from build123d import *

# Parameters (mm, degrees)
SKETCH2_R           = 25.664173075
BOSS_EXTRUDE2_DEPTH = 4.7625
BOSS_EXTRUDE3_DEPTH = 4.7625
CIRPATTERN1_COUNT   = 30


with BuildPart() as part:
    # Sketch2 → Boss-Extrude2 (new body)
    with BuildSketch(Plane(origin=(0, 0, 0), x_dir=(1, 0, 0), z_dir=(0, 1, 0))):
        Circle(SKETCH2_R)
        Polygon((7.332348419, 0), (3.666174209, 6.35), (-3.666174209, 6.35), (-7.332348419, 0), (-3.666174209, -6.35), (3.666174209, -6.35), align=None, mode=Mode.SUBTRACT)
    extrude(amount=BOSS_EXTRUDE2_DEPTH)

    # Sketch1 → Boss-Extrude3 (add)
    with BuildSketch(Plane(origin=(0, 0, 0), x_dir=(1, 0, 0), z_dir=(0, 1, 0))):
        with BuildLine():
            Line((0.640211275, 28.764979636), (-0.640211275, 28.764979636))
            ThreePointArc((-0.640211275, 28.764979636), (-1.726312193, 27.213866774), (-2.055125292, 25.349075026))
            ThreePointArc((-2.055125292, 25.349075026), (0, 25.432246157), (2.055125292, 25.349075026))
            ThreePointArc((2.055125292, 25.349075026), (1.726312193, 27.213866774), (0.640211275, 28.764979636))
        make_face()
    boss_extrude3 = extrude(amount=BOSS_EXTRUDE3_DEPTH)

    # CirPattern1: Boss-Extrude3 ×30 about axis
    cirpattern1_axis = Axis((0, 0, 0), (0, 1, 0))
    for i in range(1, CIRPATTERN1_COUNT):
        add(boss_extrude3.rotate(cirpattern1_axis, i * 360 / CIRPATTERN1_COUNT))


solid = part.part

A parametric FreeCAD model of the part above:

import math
import FreeCAD as App
import Part
import Sketcher
from FreeCAD import Vector
Q = App.Units.Quantity

doc = App.newDocument("Part")
params = doc.addObject("Spreadsheet::Sheet", "Params")
for row, (alias, value) in enumerate([
    ("pad1_length", "0.1875 in"),
    ("pad2_length", "0.1875 in"),
], start=1):
    params.set(f"A{row}", alias)
    params.set(f"B{row}", "=" + value)
    params.setAlias(f"B{row}", alias)

body = doc.addObject("PartDesign::Body", "Body")

sketch1 = body.newObject("Sketcher::SketchObject", "Sketch")
sketch1.AttachmentSupport = (doc.getObject("XZ_Plane"), [""])
sketch1.MapMode = "FlatFace"
sketch1.addGeometry(Part.Circle(Vector(0, 0, 0), Vector(0, 0, 1), 26), False)
sketch1.addGeometry(Part.LineSegment(Vector(4, -6, 0), Vector(7, 0, 0)), False)
sketch1.addGeometry(Part.LineSegment(Vector(7, 0, 0), Vector(4, 6, 0)), False)
sketch1.addGeometry(Part.LineSegment(Vector(4, 6, 0), Vector(-4, 6, 0)), False)
sketch1.addGeometry(Part.LineSegment(Vector(-4, 6, 0), Vector(-7, 0, 0)), False)
sketch1.addGeometry(Part.LineSegment(Vector(-7, 0, 0), Vector(-4, -6, 0)), False)
sketch1.addGeometry(Part.LineSegment(Vector(-4, -6, 0), Vector(4, -6, 0)), False)
sketch1.addConstraint(Sketcher.Constraint("Coincident", 1, 2, 2, 1))
sketch1.addConstraint(Sketcher.Constraint("Coincident", 2, 2, 3, 1))
sketch1.addConstraint(Sketcher.Constraint("Coincident", 3, 2, 4, 1))
sketch1.addConstraint(Sketcher.Constraint("Coincident", 4, 2, 5, 1))
sketch1.addConstraint(Sketcher.Constraint("Coincident", 5, 2, 6, 1))
sketch1.addConstraint(Sketcher.Constraint("Coincident", 6, 2, 1, 1))
sketch1.addConstraint(Sketcher.Constraint("Horizontal", 3))
sketch1.addConstraint(Sketcher.Constraint("Horizontal", 6))
sketch1.addConstraint(Sketcher.Constraint("Coincident", 0, 3, -1, 1))
sketch1.addConstraint(Sketcher.Constraint("Symmetric", 1, 2, 4, 2, -1, 1))
sketch1.addConstraint(Sketcher.Constraint("Symmetric", 2, 2, 5, 2, -1, 1))
sketch1.addConstraint(Sketcher.Constraint("PointOnObject", 1, 2, -1))
sketch1.addConstraint(Sketcher.Constraint("Parallel", 1, 4))
sketch1.addConstraint(Sketcher.Constraint("Vertical", 3, 2, 5, 2))
sketch1.addConstraint(Sketcher.Constraint("Angle", 1, Q("60 deg")))
sketch1.addConstraint(Sketcher.Constraint("DistanceY", 5, 2, 3, 2, Q("0.5 in")))
sketch1.addConstraint(Sketcher.Constraint("Diameter", 0, 51.328346))
sketch1.addConstraint(Sketcher.Constraint("DistanceX", 3, 2, 3, 1, 7.332348))
pad1 = body.newObject("PartDesign::Pad", "Pad")
pad1.Profile = sketch1
pad1.setExpression("Length", "Params.pad1_length")
pad1.Reversed = True

sketch2 = body.newObject("Sketcher::SketchObject", "Sketch001")
sketch2.AttachmentSupport = (doc.getObject("XZ_Plane"), [""])
sketch2.MapMode = "FlatFace"
sketch2.addGeometry(Part.LineSegment(Vector(0.6, -28.8, 0), Vector(-0.6, -28.8, 0)), False)
sketch2.addGeometry(Part.ArcOfCircle(Part.Circle(Vector(2.3, -25.5, 0), Vector(0, 0, 1), 4.4), math.radians(178), math.radians(227)), False)
sketch2.addGeometry(Part.ArcOfCircle(Part.Circle(Vector(0, 0, 0), Vector(0, 0, 1), 25.4), math.radians(-94.64), math.radians(-85.36)), False)
sketch2.addGeometry(Part.ArcOfCircle(Part.Circle(Vector(-2.3, -25.5, 0), Vector(0, 0, 1), 4.4), math.radians(-47), math.radians(2)), False)
sketch2.addConstraint(Sketcher.Constraint("Coincident", 0, 2, 1, 2))
sketch2.addConstraint(Sketcher.Constraint("Coincident", 1, 1, 2, 1))
sketch2.addConstraint(Sketcher.Constraint("Coincident", 2, 2, 3, 2))
sketch2.addConstraint(Sketcher.Constraint("Coincident", 3, 1, 0, 1))
sketch2.addConstraint(Sketcher.Constraint("Horizontal", 0))
sketch2.addConstraint(Sketcher.Constraint("Coincident", 2, 3, -1, 1))
sketch2.addConstraint(Sketcher.Constraint("Equal", 1, 3))
sketch2.addConstraint(Sketcher.Constraint("Symmetric", 1, 3, 3, 3, -2))
sketch2.addConstraint(Sketcher.Constraint("Radius", 1, 4.374336))
sketch2.addConstraint(Sketcher.Constraint("Radius", 2, 25.432246))
sketch2.addConstraint(Sketcher.Constraint("DistanceY", 0, 2, 3, 3, 3.225099))
sketch2.addConstraint(Sketcher.Constraint("DistanceX", 0, 2, 0, 1, 1.280423))
sketch2.addConstraint(Sketcher.Constraint("DistanceY", 1, 3, -1, 1, 25.539881))
pad2 = body.newObject("PartDesign::Pad", "Pad001")
pad2.Profile = sketch2
pad2.setExpression("Length", "Params.pad2_length")
pad2.Reversed = True
doc.recompute()

polarpattern = body.newObject("PartDesign::PolarPattern", "PolarPattern")
polarpattern.Originals = [pad2]
polarpattern.Axis = (doc.getObject("Y_Axis"), [""])
polarpattern.Angle = 360
polarpattern.Occurrences = 30
body.Tip = polarpattern

doc.recompute()
